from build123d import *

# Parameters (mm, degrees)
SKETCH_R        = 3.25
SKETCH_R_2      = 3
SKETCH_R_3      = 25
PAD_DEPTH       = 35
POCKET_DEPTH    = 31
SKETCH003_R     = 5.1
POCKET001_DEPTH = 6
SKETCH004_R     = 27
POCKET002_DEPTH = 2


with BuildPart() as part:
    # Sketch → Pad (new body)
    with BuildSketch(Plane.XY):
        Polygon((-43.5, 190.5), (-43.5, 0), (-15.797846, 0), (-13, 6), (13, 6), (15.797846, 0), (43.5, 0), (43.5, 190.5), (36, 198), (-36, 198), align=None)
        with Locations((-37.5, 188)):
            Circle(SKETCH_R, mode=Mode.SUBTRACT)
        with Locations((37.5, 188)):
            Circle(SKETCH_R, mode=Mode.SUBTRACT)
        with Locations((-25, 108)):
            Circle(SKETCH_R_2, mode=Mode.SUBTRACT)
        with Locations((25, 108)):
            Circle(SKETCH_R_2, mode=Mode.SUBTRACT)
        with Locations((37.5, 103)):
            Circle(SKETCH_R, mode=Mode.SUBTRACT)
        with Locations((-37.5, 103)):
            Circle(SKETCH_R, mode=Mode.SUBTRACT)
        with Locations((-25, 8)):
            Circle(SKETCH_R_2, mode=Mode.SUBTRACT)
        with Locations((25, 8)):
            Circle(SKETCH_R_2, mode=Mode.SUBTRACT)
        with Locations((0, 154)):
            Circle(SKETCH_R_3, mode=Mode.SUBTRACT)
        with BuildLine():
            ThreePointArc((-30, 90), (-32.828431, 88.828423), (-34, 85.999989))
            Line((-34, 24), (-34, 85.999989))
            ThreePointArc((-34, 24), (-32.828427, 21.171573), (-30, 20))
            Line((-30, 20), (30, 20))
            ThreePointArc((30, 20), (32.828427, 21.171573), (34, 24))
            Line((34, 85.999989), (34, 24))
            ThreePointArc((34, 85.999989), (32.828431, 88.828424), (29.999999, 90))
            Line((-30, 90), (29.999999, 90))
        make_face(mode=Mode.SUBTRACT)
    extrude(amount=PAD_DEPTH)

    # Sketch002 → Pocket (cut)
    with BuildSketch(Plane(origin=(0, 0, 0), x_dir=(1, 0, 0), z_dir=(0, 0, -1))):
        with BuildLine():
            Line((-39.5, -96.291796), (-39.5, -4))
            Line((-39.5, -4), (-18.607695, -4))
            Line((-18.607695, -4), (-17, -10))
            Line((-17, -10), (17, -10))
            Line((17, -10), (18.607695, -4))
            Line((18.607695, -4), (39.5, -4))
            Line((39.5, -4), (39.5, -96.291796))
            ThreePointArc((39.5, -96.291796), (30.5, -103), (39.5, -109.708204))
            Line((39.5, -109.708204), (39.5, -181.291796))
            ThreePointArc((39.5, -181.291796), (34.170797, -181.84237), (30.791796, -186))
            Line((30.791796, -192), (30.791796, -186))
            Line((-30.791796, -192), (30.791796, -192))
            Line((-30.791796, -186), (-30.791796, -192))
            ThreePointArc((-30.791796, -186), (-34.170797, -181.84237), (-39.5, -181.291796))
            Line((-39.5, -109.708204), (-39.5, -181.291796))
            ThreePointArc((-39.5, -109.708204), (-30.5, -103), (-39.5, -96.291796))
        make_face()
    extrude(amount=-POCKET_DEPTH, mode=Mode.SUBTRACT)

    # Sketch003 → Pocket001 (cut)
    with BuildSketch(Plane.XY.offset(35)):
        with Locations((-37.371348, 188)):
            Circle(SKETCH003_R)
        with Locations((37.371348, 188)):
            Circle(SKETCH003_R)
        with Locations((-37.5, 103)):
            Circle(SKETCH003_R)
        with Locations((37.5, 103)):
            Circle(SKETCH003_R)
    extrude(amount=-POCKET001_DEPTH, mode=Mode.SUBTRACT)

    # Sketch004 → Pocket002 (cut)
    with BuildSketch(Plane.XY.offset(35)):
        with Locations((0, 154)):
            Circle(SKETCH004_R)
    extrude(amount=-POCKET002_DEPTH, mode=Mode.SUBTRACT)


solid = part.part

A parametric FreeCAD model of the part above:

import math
import FreeCAD as App
import Part
import Sketcher

V = App.Vector
Q = App.Units.Quantity


def add_polygon(sketch, points):
    """Adds a closed chain of lines whose ends are joined by coincident constraints."""
    first, n = sketch.GeometryCount, len(points)
    for a, b in zip(points, points[1:] + points[:1]):
        sketch.addGeometry(Part.LineSegment(App.Vector(*a, 0), App.Vector(*b, 0)), False)
    for i in range(n):
        sketch.addConstraint(Sketcher.Constraint("Coincident", first + i, 2, first + (i + 1) % n, 1))

doc = App.newDocument("Part")
body = doc.addObject("PartDesign::Body", "Body")

sketch1 = body.newObject("Sketcher::SketchObject", "Sketch")
sketch1.AttachmentSupport = (doc.getObject("XY_Plane"), [""])
sketch1.MapMode = "FlatFace"
add_polygon(sketch1, [(-43.5, 190.5), (-43.5, 0), (-15.8, 0), (-13, 6), (13, 6), (15.8, 0), (43.5, 0), (43.5, 190.5), (36, 198), (-36, 198)])
sketch1.addGeometry(Part.Circle(V(-25, 8, 0), V(0, 0, 1), 3), False)
sketch1.addGeometry(Part.Circle(V(25, 8, 0), V(0, 0, 1), 3), False)
sketch1.addGeometry(Part.ArcOfCircle(Part.Circle(V(-30, 86, 0), V(0, 0, 1), 4), math.radians(90), math.radians(180)), False)
sketch1.addGeometry(Part.LineSegment(V(-30, 90, 0), V(30, 90, 0)), False)
sketch1.addGeometry(Part.ArcOfCircle(Part.Circle(V(30, 86, 0), V(0, 0, 1), 4), math.radians(0), math.radians(90)), False)
sketch1.addGeometry(Part.LineSegment(V(34, 86, 0), V(34, 24, 0)), False)
sketch1.addGeometry(Part.ArcOfCircle(Part.Circle(V(30, 24, 0), V(0, 0, 1), 4), math.radians(-90), math.radians(0)), False)
sketch1.addGeometry(Part.LineSegment(V(30, 20, 0), V(-30, 20, 0)), False)
sketch1.addGeometry(Part.ArcOfCircle(Part.Circle(V(-30, 24, 0), V(0, 0, 1), 4), math.radians(-180), math.radians(-90)), False)
sketch1.addGeometry(Part.LineSegment(V(-34, 24, 0), V(-34, 86, 0)), False)
sketch1.addGeometry(Part.Circle(V(-37.5, 103, 0), V(0, 0, 1), 3.2), False)
sketch1.addGeometry(Part.Circle(V(-25, 108, 0), V(0, 0, 1), 3), False)
sketch1.addGeometry(Part.Circle(V(-37.5, 188, 0), V(0, 0, 1), 3.2), False)
sketch1.addGeometry(Part.Circle(V(25, 108, 0), V(0, 0, 1), 3), False)
sketch1.addGeometry(Part.Circle(V(37.5, 103, 0), V(0, 0, 1), 3.2), False)
sketch1.addGeometry(Part.Circle(V(0, 154, 0), V(0, 0, 1), 25), False)
sketch1.addGeometry(Part.Circle(V(37.5, 188, 0), V(0, 0, 1), 3.2), False)
sketch1.addConstraint(Sketcher.Constraint("Tangent", 12, 1, 13, 1))
sketch1.addConstraint(Sketcher.Constraint("Tangent", 13, 2, 14, 2))
sketch1.addConstraint(Sketcher.Constraint("Coincident", 14, 1, 15, 1))
sketch1.addConstraint(Sketcher.Constraint("Tangent", 15, 2, 16, 2))
sketch1.addConstraint(Sketcher.Constraint("Tangent", 16, 1, 17, 1))
sketch1.addConstraint(Sketcher.Constraint("Tangent", 17, 2, 18, 2))
sketch1.addConstraint(Sketcher.Constraint("Tangent", 18, 1, 19, 1))
sketch1.addConstraint(Sketcher.Constraint("Coincident", 19, 2, 12, 2))
sketch1.addConstraint(Sketcher.Constraint("Vertical", 0))
sketch1.addConstraint(Sketcher.Constraint("Horizontal", 1))
sketch1.addConstraint(Sketcher.Constraint("Horizontal", 3))
sketch1.addConstraint(Sketcher.Constraint("Horizontal", 5))
sketch1.addConstraint(Sketcher.Constraint("Vertical", 6))
sketch1.addConstraint(Sketcher.Constraint("Horizontal", 8))
sketch1.addConstraint(Sketcher.Constraint("Horizontal", 13))
sketch1.addConstraint(Sketcher.Constraint("Vertical", 15))
sketch1.addConstraint(Sketcher.Constraint("Horizontal", 17))
sketch1.addConstraint(Sketcher.Constraint("Vertical", 19))
sketch1.addConstraint(Sketcher.Constraint("Equal", 10, 11))
sketch1.addConstraint(Sketcher.Constraint("Equal", 12, 14))
sketch1.addConstraint(Sketcher.Constraint("Equal", 14, 16))
sketch1.addConstraint(Sketcher.Constraint("Equal", 16, 18))
sketch1.addConstraint(Sketcher.Constraint("Equal", 11, 21))
sketch1.addConstraint(Sketcher.Constraint("Equal", 20, 22))
sketch1.addConstraint(Sketcher.Constraint("Equal", 21, 23))
sketch1.addConstraint(Sketcher.Constraint("Equal", 22, 24))
sketch1.addConstraint(Sketcher.Constraint("Equal", 24, 26))
sketch1.addConstraint(Sketcher.Constraint("Symmetric", 1, 2, 4, 2, -1, 1))
sketch1.addConstraint(Sketcher.Constraint("Symmetric", 10, 3, 11, 3, -2))
sketch1.addConstraint(Sketcher.Constraint("Symmetric", 21, 3, 23, 3, -2))
sketch1.addConstraint(Sketcher.Constraint("Symmetric", 20, 3, 24, 3, -2))
sketch1.addConstraint(Sketcher.Constraint("Symmetric", 22, 3, 26, 3, -2))
sketch1.addConstraint(Sketcher.Constraint("Symmetric", 0, 2, 5, 2, -2))
sketch1.addConstraint(Sketcher.Constraint("Symmetric", 14, 1, 19, 2, -2))
sketch1.addConstraint(Sketcher.Constraint("PointOnObject", 25, 3, -2))
sketch1.addConstraint(Sketcher.Constraint("Perpendicular", 7, 9))
sketch1.addConstraint(Sketcher.Constraint("Horizontal", 6, 2, 9, 2))
sketch1.addConstraint(Sketcher.Constraint("Vertical", 10, 3, 21, 3))
sketch1.addConstraint(Sketcher.Constraint("Vertical", 20, 3, 22, 3))
sketch1.addConstraint(Sketcher.Constraint("Equal", 2, 4))
sketch1.addConstraint(Sketcher.Constraint("Equal", 7, 9))
sketch1.addConstraint(Sketcher.Constraint("Diameter", 10, Q("6 mm")))
sketch1.addConstraint(Sketcher.Constraint("Diameter", 25, Q("50 mm")))
sketch1.addConstraint(Sketcher.Constraint("Radius", 12, Q("4 mm")))
sketch1.addConstraint(Sketcher.Constraint("Diameter", 20, Q("6.5 mm")))
sketch1.addConstraint(Sketcher.Constraint("DistanceX", 3, 1, 3, 2, Q("26 mm")))
sketch1.addConstraint(Sketcher.Constraint("DistanceX", 8, 2, 8, 1, Q("72 mm")))
sketch1.addConstraint(Sketcher.Constraint("DistanceX", 13, 1, 13, 2, Q("59.999999 mm")))
sketch1.addConstraint(Sketcher.Constraint("Angle", 2, Q("65 deg")))
sketch1.addConstraint(Sketcher.Constraint("DistanceY", 0, 2, 0, 1, Q("190.5 mm")))
sketch1.addConstraint(Sketcher.Constraint("DistanceX", 10, 3, -1, 1, Q("25 mm")))
sketch1.addConstraint(Sketcher.Constraint("DistanceY", -1, 1, 10, 3, Q("8 mm")))
sketch1.addConstraint(Sketcher.Constraint("DistanceY", -1, 1, 12, 3, Q("86 mm")))
sketch1.addConstraint(Sketcher.Constraint("DistanceY", -1, 1, 16, 3, Q("24 mm")))
sketch1.addConstraint(Sketcher.Constraint("DistanceY", -1, 1, 20, 3, Q("103 mm")))
sketch1.addConstraint(Sketcher.Constraint("DistanceY", -1, 1, 21, 3, Q("108 mm")))
sketch1.addConstraint(Sketcher.Constraint("DistanceY", -1, 1, 22, 3, Q("188 mm")))
sketch1.addConstraint(Sketcher.Constraint("DistanceY", -1, 1, 25, 3, Q("154 mm")))
sketch1.addConstraint(Sketcher.Constraint("DistanceY", -1, 1, 2, 2, Q("6 mm")))
sketch1.addConstraint(Sketcher.Constraint("DistanceY", -1, 1, 7, 2, Q("198 mm")))
sketch1.addConstraint(Sketcher.Constraint("DistanceX", 20, 3, 24, 3, Q("75 mm")))
sketch1.addConstraint(Sketcher.Constraint("DistanceY", 15, 2, 15, 1, Q("61.999989 mm")))
pad1 = body.newObject("PartDesign::Pad", "Pad")
pad1.Profile = sketch1
pad1.Length = 35

sketch2 = body.newObject("Sketcher::SketchObject", "Sketch001")
sketch2.AttachmentSupport = (doc.getObject("XY_Plane"), [""])
sketch2.MapMode = "FlatFace"
sketch2.addGeometry(Part.LineSegment(V(-40, 4, 0), V(-40, 96, 0)), False)
sketch2.addGeometry(Part.ArcOfCircle(Part.Circle(V(-38, 103, 0), V(0, 0, 1), 7), math.radians(-107), math.radians(107)), False)
sketch2.addGeometry(Part.LineSegment(V(-40, 110, 0), V(-40, 181, 0)), False)
sketch2.addGeometry(Part.ArcOfCircle(Part.Circle(V(-38, 188, 0), V(0, 0, 1), 7), math.radians(-107), math.radians(-17)), False)
sketch2.addGeometry(Part.LineSegment(V(-31, 186, 0), V(-31, 192, 0)), False)
sketch2.addGeometry(Part.LineSegment(V(-31, 192, 0), V(31, 192, 0)), False)
sketch2.addGeometry(Part.LineSegment(V(31, 192, 0), V(31, 186, 0)), False)
sketch2.addGeometry(Part.ArcOfCircle(Part.Circle(V(38, 188, 0), V(0, 0, 1), 7), math.radians(-163), math.radians(-73)), False)
sketch2.addGeometry(Part.LineSegment(V(40, 181, 0), V(40, 110, 0)), False)
sketch2.addGeometry(Part.ArcOfCircle(Part.Circle(V(38, 103, 0), V(0, 0, 1), 7), math.radians(73), math.radians(287)), False)
sketch2.addGeometry(Part.LineSegment(V(40, 96, 0), V(40, 4, 0)), False)
sketch2.addGeometry(Part.LineSegment(V(40, 4, 0), V(19, 4, 0)), False)
sketch2.addGeometry(Part.LineSegment(V(19, 4, 0), V(17, 10, 0)), False)
sketch2.addGeometry(Part.LineSegment(V(17, 10, 0), V(-17, 10, 0)), False)
sketch2.addGeometry(Part.LineSegment(V(-17, 10, 0), V(-19, 4, 0)), False)
sketch2.addGeometry(Part.LineSegment(V(-19, 4, 0), V(-40, 4, 0)), False)
sketch2.addConstraint(Sketcher.Constraint("Coincident", 0, 2, 1, 1))
sketch2.addConstraint(Sketcher.Constraint("Coincident", 1, 2, 2, 1))
sketch2.addConstraint(Sketcher.Constraint("Coincident", 2, 2, 3, 1))
sketch2.addConstraint(Sketcher.Constraint("Coincident", 3, 2, 4, 1))
sketch2.addConstraint(Sketcher.Constraint("Coincident", 4, 2, 5, 1))
sketch2.addConstraint(Sketcher.Constraint("Coincident", 5, 2, 6, 1))
sketch2.addConstraint(Sketcher.Constraint("Coincident", 6, 2, 7, 1))
sketch2.addConstraint(Sketcher.Constraint("Coincident", 7, 2, 8, 1))
sketch2.addConstraint(Sketcher.Constraint("Coincident", 8, 2, 9, 1))
sketch2.addConstraint(Sketcher.Constraint("Coincident", 9, 2, 10, 1))
sketch2.addConstraint(Sketcher.Constraint("Coincident", 10, 2, 11, 1))
sketch2.addConstraint(Sketcher.Constraint("Coincident", 11, 2, 12, 1))
sketch2.addConstraint(Sketcher.Constraint("Coincident", 12, 2, 13, 1))
sketch2.addConstraint(Sketcher.Constraint("Coincident", 13, 2, 14, 1))
sketch2.addConstraint(Sketcher.Constraint("Coincident", 14, 2, 15, 1))
sketch2.addConstraint(Sketcher.Constraint("Coincident", 15, 2, 0, 1))
sketch2.addConstraint(Sketcher.Constraint("Vertical", 0))
sketch2.addConstraint(Sketcher.Constraint("Vertical", 2))
sketch2.addConstraint(Sketcher.Constraint("Vertical", 4))
sketch2.addConstraint(Sketcher.Constraint("Horizontal", 5))
sketch2.addConstraint(Sketcher.Constraint("Vertical", 6))
sketch2.addConstraint(Sketcher.Constraint("Vertical", 8))
sketch2.addConstraint(Sketcher.Constraint("Vertical", 10))
sketch2.addConstraint(Sketcher.Constraint("Horizontal", 11))
sketch2.addConstraint(Sketcher.Constraint("Horizontal", 13))
sketch2.addConstraint(Sketcher.Constraint("Horizontal", 15))
sketch2.addConstraint(Sketcher.Constraint("Equal", 1, 3))
sketch2.addConstraint(Sketcher.Constraint("Equal", 3, 7))
sketch2.addConstraint(Sketcher.Constraint("Equal", 7, 9))
sketch2.addConstraint(Sketcher.Constraint("Symmetric", 3, 3, 7, 3, -2))
sketch2.addConstraint(Sketcher.Constraint("Symmetric", 1, 3, 9, 3, -2))
sketch2.addConstraint(Sketcher.Constraint("Symmetric", 11, 2, 14, 2, -2))
sketch2.addConstraint(Sketcher.Constraint("Horizontal", 3, 2, 6, 2))
sketch2.addConstraint(Sketcher.Constraint("Horizontal", 2, 2, 7, 2))
sketch2.addConstraint(Sketcher.Constraint("Horizontal", 0, 2, 9, 2))
sketch2.addConstraint(Sketcher.Constraint("Vertical", 1, 3, 3, 3))
sketch2.addConstraint(Sketcher.Constraint("Vertical", 0, 2, 1, 2))
sketch2.addConstraint(Sketcher.Constraint("Equal", 12, 14))
sketch2.addConstraint(Sketcher.Constraint("Radius", 1, Q("7 mm")))
sketch2.addConstraint(Sketcher.Constraint("DistanceX", 13, 2, 13, 1, Q("34 mm")))
sketch2.addConstraint(Sketcher.Constraint("DistanceY", 4, 1, 4, 2, Q("6 mm")))
sketch2.addConstraint(Sketcher.Constraint("Angle", 12, Q("104.999999 deg")))
sketch2.addConstraint(Sketcher.Constraint("DistanceY", -1, 1, 1, 3, Q("103 mm")))
sketch2.addConstraint(Sketcher.Constraint("DistanceY", -1, 1, 3, 3, Q("188 mm")))
sketch2.addConstraint(Sketcher.Constraint("DistanceY", -1, 1, 3, 2, Q("186 mm")))
sketch2.addConstraint(Sketcher.Constraint("DistanceY", -1, 1, 10, 2, Q("4 mm")))
sketch2.addConstraint(Sketcher.Constraint("DistanceY", -1, 1, 12, 2, Q("10 mm")))
sketch2.addConstraint(Sketcher.Constraint("DistanceX", 3, 3, 7, 3, Q("75 mm")))
sketch2.addConstraint(Sketcher.Constraint("DistanceX", 0, 2, 1, 3, Q("2 mm")))
pocket1 = body.newObject("PartDesign::Pocket", "Pocket")
pocket1.Profile = sketch2
pocket1.Length = 31
pocket1.Reversed = True

sketch3 = body.newObject("Sketcher::SketchObject", "Sketch002")
sketch3.AttachmentSupport = (doc.getObject("XY_Plane"), [""])
sketch3.MapMode = "FlatFace"
sketch3.AttachmentOffset = App.Placement(V(0, 0, 35), App.Rotation())
sketch3.addGeometry(Part.Circle(V(-37, 188, 0), V(0, 0, 1), 5), False)
sketch3.addGeometry(Part.Circle(V(37, 188, 0), V(0, 0, 1), 5), False)
sketch3.addGeometry(Part.Circle(V(-38, 103, 0), V(0, 0, 1), 5), False)
sketch3.addGeometry(Part.Circle(V(38, 103, 0), V(0, 0, 1), 5), False)
sketch3.addConstraint(Sketcher.Constraint("Equal", 0, 1))
sketch3.addConstraint(Sketcher.Constraint("Equal", 1, 2))
sketch3.addConstraint(Sketcher.Constraint("Equal", 2, 3))
sketch3.addConstraint(Sketcher.Constraint("Symmetric", 0, 3, 1, 3, -2))
sketch3.addConstraint(Sketcher.Constraint("Symmetric", 2, 3, 3, 3, -2))
sketch3.addConstraint(Sketcher.Constraint("Diameter", 0, Q("10.2 mm")))
sketch3.addConstraint(Sketcher.Constraint("DistanceY", -1, 1, 0, 3, Q("188 mm")))
sketch3.addConstraint(Sketcher.Constraint("DistanceY", -1, 1, 2, 3, Q("103 mm")))
sketch3.addConstraint(Sketcher.Constraint("DistanceX", 2, 3, 3, 3, Q("75 mm")))
sketch3.addConstraint(Sketcher.Constraint("DistanceX", 0, 3, -1, 1, Q("37.371348 mm")))
pocket2 = body.newObject("PartDesign::Pocket", "Pocket001")
pocket2.Profile = sketch3
pocket2.Length = 6

sketch4 = body.newObject("Sketcher::SketchObject", "Sketch003")
sketch4.AttachmentSupport = (doc.getObject("XY_Plane"), [""])
sketch4.MapMode = "FlatFace"
sketch4.AttachmentOffset = App.Placement(V(0, 0, 35), App.Rotation())
sketch4.addGeometry(Part.Circle(V(0, 154, 0), V(0, 0, 1), 27), False)
sketch4.addConstraint(Sketcher.Constraint("PointOnObject", 0, 3, -2))
sketch4.addConstraint(Sketcher.Constraint("Diameter", 0, Q("54 mm")))
sketch4.addConstraint(Sketcher.Constraint("DistanceY", -1, 1, 0, 3, Q("154 mm")))
pocket3 = body.newObject("PartDesign::Pocket", "Pocket002")
pocket3.Profile = sketch4
pocket3.Length = 2

doc.recompute()
